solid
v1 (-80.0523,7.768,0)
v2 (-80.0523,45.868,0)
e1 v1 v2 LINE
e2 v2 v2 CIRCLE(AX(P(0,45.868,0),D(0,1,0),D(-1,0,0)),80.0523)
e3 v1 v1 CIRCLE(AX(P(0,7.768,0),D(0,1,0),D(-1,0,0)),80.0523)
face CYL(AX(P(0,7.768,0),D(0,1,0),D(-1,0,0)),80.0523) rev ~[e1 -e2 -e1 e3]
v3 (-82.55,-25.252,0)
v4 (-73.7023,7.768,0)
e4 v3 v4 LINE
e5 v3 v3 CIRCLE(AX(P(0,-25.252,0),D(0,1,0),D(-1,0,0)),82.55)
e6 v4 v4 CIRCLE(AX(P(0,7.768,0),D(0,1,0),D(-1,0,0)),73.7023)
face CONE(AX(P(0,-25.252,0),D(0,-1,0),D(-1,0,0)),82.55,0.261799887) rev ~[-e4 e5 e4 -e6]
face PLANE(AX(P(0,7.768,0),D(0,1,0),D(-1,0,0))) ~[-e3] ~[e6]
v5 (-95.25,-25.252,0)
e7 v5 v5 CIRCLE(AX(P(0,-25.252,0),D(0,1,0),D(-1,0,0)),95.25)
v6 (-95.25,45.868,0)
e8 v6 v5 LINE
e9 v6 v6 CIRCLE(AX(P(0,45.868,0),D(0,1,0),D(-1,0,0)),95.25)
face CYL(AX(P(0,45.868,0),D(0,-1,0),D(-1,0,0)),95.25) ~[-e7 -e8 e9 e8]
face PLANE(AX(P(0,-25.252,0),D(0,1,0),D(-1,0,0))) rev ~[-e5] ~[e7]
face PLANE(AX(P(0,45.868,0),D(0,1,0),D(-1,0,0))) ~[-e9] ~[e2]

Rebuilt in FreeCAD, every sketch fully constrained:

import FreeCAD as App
import Part
import Sketcher

V = App.Vector
Q = App.Units.Quantity


def add_polygon(sketch, points):
    """Adds a closed chain of lines whose ends are joined by coincident constraints."""
    first, n = sketch.GeometryCount, len(points)
    for a, b in zip(points, points[1:] + points[:1]):
        sketch.addGeometry(Part.LineSegment(App.Vector(*a, 0), App.Vector(*b, 0)), False)
    for i in range(n):
        sketch.addConstraint(Sketcher.Constraint("Coincident", first + i, 2, first + (i + 1) % n, 1))

doc = App.newDocument("Part")
body = doc.addObject("PartDesign::Body", "Body")

# Sketch on XY plane
sketch1 = body.newObject("Sketcher::SketchObject", "Sketch")
sketch1.AttachmentSupport = (doc.getObject("XY_Plane"), [""])
sketch1.MapMode = "FlatFace"
add_polygon(sketch1, [(-95, 46), (-95, -25), (-83, -25), (-74, 8), (-80, 8), (-80, 46)])  # lines 0-5
sketch1.addConstraint([
    Sketcher.Constraint("Vertical", 0),
    Sketcher.Constraint("Horizontal", 1),
    Sketcher.Constraint("Horizontal", 3),
    Sketcher.Constraint("Vertical", 4),
    Sketcher.Constraint("Horizontal", 5),
    Sketcher.Constraint("DistanceX", 1, 1, 1, 2, Q("0.5 in")),
    Sketcher.Constraint("DistanceY", 0, 2, 0, 1, Q("2.8 in")),
    Sketcher.Constraint("DistanceY", 4, 1, 4, 2, Q("1.5 in")),
    Sketcher.Constraint("DistanceX", 3, 2, 3, 1, Q("0.25 in")),
    Sketcher.Constraint("DistanceX", 1, 2, -1, 1, Q("3.25 in")),
    Sketcher.Constraint("Angle", 2, Q("75 deg")),
    Sketcher.Constraint("DistanceY", 0, 2, -1, 1, 25.252),
])
revolution = body.newObject("PartDesign::Revolution", "Revolution")
revolution.Profile = sketch1
revolution.ReferenceAxis = (sketch1, ["V_Axis"])
revolution.Angle = 360

doc.recompute()
